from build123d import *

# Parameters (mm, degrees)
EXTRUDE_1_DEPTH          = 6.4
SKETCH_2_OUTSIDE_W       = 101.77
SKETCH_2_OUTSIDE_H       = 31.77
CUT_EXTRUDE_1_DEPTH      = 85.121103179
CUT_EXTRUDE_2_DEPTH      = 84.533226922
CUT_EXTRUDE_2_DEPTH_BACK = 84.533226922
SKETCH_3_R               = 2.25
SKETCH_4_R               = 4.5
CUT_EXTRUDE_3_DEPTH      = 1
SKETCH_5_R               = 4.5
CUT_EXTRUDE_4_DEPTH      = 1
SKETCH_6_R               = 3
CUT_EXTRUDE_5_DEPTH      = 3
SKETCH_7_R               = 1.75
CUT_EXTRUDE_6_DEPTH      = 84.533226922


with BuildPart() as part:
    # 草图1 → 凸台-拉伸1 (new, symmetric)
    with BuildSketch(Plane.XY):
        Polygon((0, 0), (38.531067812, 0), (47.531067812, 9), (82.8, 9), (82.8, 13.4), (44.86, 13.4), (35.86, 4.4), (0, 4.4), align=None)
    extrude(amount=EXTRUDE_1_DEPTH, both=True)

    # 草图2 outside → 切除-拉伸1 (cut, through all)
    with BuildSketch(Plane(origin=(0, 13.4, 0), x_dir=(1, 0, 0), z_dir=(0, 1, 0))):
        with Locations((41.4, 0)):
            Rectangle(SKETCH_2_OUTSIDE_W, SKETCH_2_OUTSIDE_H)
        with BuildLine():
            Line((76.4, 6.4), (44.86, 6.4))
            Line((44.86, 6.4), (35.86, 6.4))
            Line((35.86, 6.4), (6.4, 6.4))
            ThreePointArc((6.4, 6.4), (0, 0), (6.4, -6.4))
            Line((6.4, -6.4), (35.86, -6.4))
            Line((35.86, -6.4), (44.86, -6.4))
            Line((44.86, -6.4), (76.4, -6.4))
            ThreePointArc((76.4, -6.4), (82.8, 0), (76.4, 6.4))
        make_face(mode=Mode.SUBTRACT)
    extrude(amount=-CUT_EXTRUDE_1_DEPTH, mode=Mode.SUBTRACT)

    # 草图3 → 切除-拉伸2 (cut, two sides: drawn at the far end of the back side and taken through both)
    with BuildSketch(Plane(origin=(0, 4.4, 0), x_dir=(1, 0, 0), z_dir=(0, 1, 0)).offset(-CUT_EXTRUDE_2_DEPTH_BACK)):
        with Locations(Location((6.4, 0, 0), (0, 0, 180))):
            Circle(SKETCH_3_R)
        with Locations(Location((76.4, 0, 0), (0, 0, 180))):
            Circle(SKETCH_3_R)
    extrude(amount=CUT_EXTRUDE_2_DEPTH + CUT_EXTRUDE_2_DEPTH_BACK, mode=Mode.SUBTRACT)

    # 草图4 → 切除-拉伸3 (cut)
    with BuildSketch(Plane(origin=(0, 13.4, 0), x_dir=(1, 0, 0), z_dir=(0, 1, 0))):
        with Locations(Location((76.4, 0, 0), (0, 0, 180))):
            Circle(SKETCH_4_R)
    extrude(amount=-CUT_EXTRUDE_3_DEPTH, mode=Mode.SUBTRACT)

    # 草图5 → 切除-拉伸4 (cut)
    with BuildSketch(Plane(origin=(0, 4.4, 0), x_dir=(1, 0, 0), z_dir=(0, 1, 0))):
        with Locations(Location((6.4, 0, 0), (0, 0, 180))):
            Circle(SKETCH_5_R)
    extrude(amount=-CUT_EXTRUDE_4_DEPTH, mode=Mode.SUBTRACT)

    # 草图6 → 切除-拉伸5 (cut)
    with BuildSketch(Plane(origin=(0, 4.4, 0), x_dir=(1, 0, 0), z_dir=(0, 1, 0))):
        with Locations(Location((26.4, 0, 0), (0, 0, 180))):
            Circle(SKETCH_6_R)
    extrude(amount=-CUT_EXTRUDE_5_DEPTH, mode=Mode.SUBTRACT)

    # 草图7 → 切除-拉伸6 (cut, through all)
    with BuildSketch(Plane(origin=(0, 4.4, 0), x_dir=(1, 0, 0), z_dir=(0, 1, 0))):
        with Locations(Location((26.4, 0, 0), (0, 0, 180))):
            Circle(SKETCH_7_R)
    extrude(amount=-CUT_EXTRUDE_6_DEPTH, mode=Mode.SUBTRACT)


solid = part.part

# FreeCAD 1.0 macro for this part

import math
import FreeCAD as App
import Part
import Sketcher
Q = App.Units.Quantity


def add_polygon(sketch, points):
    """Adds a closed chain of lines whose ends are joined by coincident constraints."""
    first, n = sketch.GeometryCount, len(points)
    for a, b in zip(points, points[1:] + points[:1]):
        sketch.addGeometry(Part.LineSegment(App.Vector(*a, 0), App.Vector(*b, 0)), False)
    for i in range(n):
        sketch.addConstraint(Sketcher.Constraint("Coincident", first + i, 2, first + (i + 1) % n, 1))

doc = App.newDocument("Part")
body = doc.addObject("PartDesign::Body", "Body")

# Sketch on XY plane
sketch1 = body.newObject("Sketcher::SketchObject", "Sketch")
sketch1.AttachmentSupport = (doc.getObject("XY_Plane"), [""])
sketch1.MapMode = "FlatFace"
add_polygon(sketch1, [(0, 0), (38.5, 0), (47.5, 9), (82.8, 9), (82.8, 13.4), (44.9, 13.4), (35.9, 4.4), (0, 4.4)])  # lines 0-7
sketch1.addConstraint(Sketcher.Constraint("Horizontal", 0))
sketch1.addConstraint(Sketcher.Constraint("Horizontal", 2))
sketch1.addConstraint(Sketcher.Constraint("Vertical", 3))
sketch1.addConstraint(Sketcher.Constraint("Horizontal", 4))
sketch1.addConstraint(Sketcher.Constraint("Horizontal", 6))
sketch1.addConstraint(Sketcher.Constraint("Vertical", 7))
sketch1.addConstraint(Sketcher.Constraint("Coincident", 7, 2, -1, 1))
sketch1.addConstraint(Sketcher.Constraint("Parallel", 1, 5))
sketch1.addConstraint(Sketcher.Constraint("Equal", 3, 7))
sketch1.addConstraint(Sketcher.Constraint("Angle", 1, Q("45 deg")))
sketch1.addConstraint(Sketcher.Constraint("DistanceY", 3, 1, 3, 2, 4.4))
sketch1.addConstraint(Sketcher.Constraint("DistanceY", -1, 1, 1, 2, 9.0))
sketch1.addConstraint(Sketcher.Constraint("DistanceX", 4, 2, 4, 1, 37.94))
sketch1.addConstraint(Sketcher.Constraint("DistanceX", 6, 2, 6, 1, 35.86))
sketch1.addConstraint(Sketcher.Constraint("DistanceX", 0, 1, 0, 2, 38.531068))
pad1 = body.newObject("PartDesign::Pad", "Pad")
pad1.Profile = sketch1
pad1.Length = 12.8
pad1.Midplane = True

# Sketch on XZ plane
sketch2 = body.newObject("Sketcher::SketchObject", "Sketch001")
sketch2.AttachmentSupport = (doc.getObject("XZ_Plane"), [""])
sketch2.MapMode = "FlatFace"
sketch2.AttachmentOffset = App.Placement(App.Vector(0, 0, -13.4), App.Rotation())
add_polygon(sketch2, [(-9, -16), (-9, 16), (92, 16), (92, -16)])  # lines 0-3
sketch2.addGeometry(Part.LineSegment(App.Vector(6, -6, 0), App.Vector(76, -6, 0)), False)  # 4
sketch2.addGeometry(Part.ArcOfCircle(Part.Circle(App.Vector(76, 0, 0), App.Vector(0, 0, 1), 6), math.radians(-90), math.radians(90)), False)  # 5
sketch2.addGeometry(Part.LineSegment(App.Vector(76, 6, 0), App.Vector(6, 6, 0)), False)  # 6
sketch2.addGeometry(Part.ArcOfCircle(Part.Circle(App.Vector(6, 0, 0), App.Vector(0, 0, 1), 6), math.radians(90), math.radians(270)), False)  # 7
sketch2.addConstraint(Sketcher.Constraint("Tangent", 4, 2, 5, 1))
sketch2.addConstraint(Sketcher.Constraint("Tangent", 5, 2, 6, 1))
sketch2.addConstraint(Sketcher.Constraint("Tangent", 6, 2, 7, 1))
sketch2.addConstraint(Sketcher.Constraint("Tangent", 7, 2, 4, 1))
sketch2.addConstraint(Sketcher.Constraint("Vertical", 0))
sketch2.addConstraint(Sketcher.Constraint("Horizontal", 1))
sketch2.addConstraint(Sketcher.Constraint("Vertical", 2))
sketch2.addConstraint(Sketcher.Constraint("Horizontal", 3))
sketch2.addConstraint(Sketcher.Constraint("Horizontal", 4))
sketch2.addConstraint(Sketcher.Constraint("Horizontal", 6))
sketch2.addConstraint(Sketcher.Constraint("PointOnObject", 5, 3, -1))
sketch2.addConstraint(Sketcher.Constraint("Radius", 5, 6.4))
sketch2.addConstraint(Sketcher.Constraint("DistanceX", 4, 1, 4, 2, 70.0))
sketch2.addConstraint(Sketcher.Constraint("DistanceX", 1, 1, 1, 2, 101.77))
sketch2.addConstraint(Sketcher.Constraint("DistanceY", 0, 1, 0, 2, 31.77))
sketch2.addConstraint(Sketcher.Constraint("DistanceX", -1, 1, 5, 3, 76.4))
sketch2.addConstraint(Sketcher.Constraint("DistanceX", 0, 2, -1, 1, 9.485))
sketch2.addConstraint(Sketcher.Constraint("DistanceY", -1, 1, 0, 2, 15.885))
pocket1 = body.newObject("PartDesign::Pocket", "Pocket")
pocket1.Profile = sketch2
pocket1.Type = "ThroughAll"
pocket1.Reversed = True

# Sketch on XZ plane
sketch3 = body.newObject("Sketcher::SketchObject", "Sketch002")
sketch3.AttachmentSupport = (doc.getObject("XZ_Plane"), [""])
sketch3.MapMode = "FlatFace"
sketch3.AttachmentOffset = App.Placement(App.Vector(0, 0, -4.4), App.Rotation())
sketch3.addGeometry(Part.Circle(App.Vector(6.4, 0, 0), App.Vector(0, 0, 1), 2.2), False)
sketch3.addGeometry(Part.Circle(App.Vector(76.4, 0, 0), App.Vector(0, 0, 1), 2.2), False)
sketch3.addConstraint(Sketcher.Constraint("Equal", 0, 1))
sketch3.addConstraint(Sketcher.Constraint("PointOnObject", 0, 3, -1))
sketch3.addConstraint(Sketcher.Constraint("PointOnObject", 1, 3, -1))
sketch3.addConstraint(Sketcher.Constraint("Diameter", 0, 4.5))
sketch3.addConstraint(Sketcher.Constraint("DistanceX", 0, 3, 1, 3, 70.0))
sketch3.addConstraint(Sketcher.Constraint("DistanceX", -1, 1, 0, 3, 6.4))
pocket2 = body.newObject("PartDesign::Pocket", "Pocket001")
pocket2.Profile = sketch3
pocket2.Type = "ThroughAll"
pocket2.Midplane = True

# Sketch on XZ plane
sketch4 = body.newObject("Sketcher::SketchObject", "Sketch003")
sketch4.AttachmentSupport = (doc.getObject("XZ_Plane"), [""])
sketch4.MapMode = "FlatFace"
sketch4.AttachmentOffset = App.Placement(App.Vector(0, 0, -13.4), App.Rotation())
sketch4.addGeometry(Part.Circle(App.Vector(76.4, 0, 0), App.Vector(0, 0, 1), 4.5), False)
sketch4.addConstraint(Sketcher.Constraint("PointOnObject", 0, 3, -1))
sketch4.addConstraint(Sketcher.Constraint("Diameter", 0, 9.0))
sketch4.addConstraint(Sketcher.Constraint("DistanceX", -1, 1, 0, 3, 76.4))
pocket3 = body.newObject("PartDesign::Pocket", "Pocket002")
pocket3.Profile = sketch4
pocket3.Length = 1
pocket3.Reversed = True

# Sketch on XZ plane
sketch5 = body.newObject("Sketcher::SketchObject", "Sketch004")
sketch5.AttachmentSupport = (doc.getObject("XZ_Plane"), [""])
sketch5.MapMode = "FlatFace"
sketch5.AttachmentOffset = App.Placement(App.Vector(0, 0, -4.4), App.Rotation())
sketch5.addGeometry(Part.Circle(App.Vector(6.4, 0, 0), App.Vector(0, 0, 1), 4.5), False)
sketch5.addConstraint(Sketcher.Constraint("PointOnObject", 0, 3, -1))
sketch5.addConstraint(Sketcher.Constraint("Diameter", 0, 9.0))
sketch5.addConstraint(Sketcher.Constraint("DistanceX", -1, 1, 0, 3, 6.4))
pocket4 = body.newObject("PartDesign::Pocket", "Pocket003")
pocket4.Profile = sketch5
pocket4.Length = 1
pocket4.Reversed = True

# Sketch on XZ plane
sketch6 = body.newObject("Sketcher::SketchObject", "Sketch005")
sketch6.AttachmentSupport = (doc.getObject("XZ_Plane"), [""])
sketch6.MapMode = "FlatFace"
sketch6.AttachmentOffset = App.Placement(App.Vector(0, 0, -4.4), App.Rotation())
sketch6.addGeometry(Part.Circle(App.Vector(26.4, 0, 0), App.Vector(0, 0, 1), 3), False)
sketch6.addConstraint(Sketcher.Constraint("PointOnObject", 0, 3, -1))
sketch6.addConstraint(Sketcher.Constraint("Diameter", 0, 6.0))
sketch6.addConstraint(Sketcher.Constraint("DistanceX", -1, 1, 0, 3, 26.4))
pocket5 = body.newObject("PartDesign::Pocket", "Pocket004")
pocket5.Profile = sketch6
pocket5.Length = 3
pocket5.Reversed = True

# Sketch on XZ plane
sketch7 = body.newObject("Sketcher::SketchObject", "Sketch006")
sketch7.AttachmentSupport = (doc.getObject("XZ_Plane"), [""])
sketch7.MapMode = "FlatFace"
sketch7.AttachmentOffset = App.Placement(App.Vector(0, 0, -4.4), App.Rotation())
sketch7.addGeometry(Part.Circle(App.Vector(26.4, 0, 0), App.Vector(0, 0, 1), 1.8), False)
sketch7.addConstraint(Sketcher.Constraint("PointOnObject", 0, 3, -1))
sketch7.addConstraint(Sketcher.Constraint("Diameter", 0, 3.5))
sketch7.addConstraint(Sketcher.Constraint("DistanceX", -1, 1, 0, 3, 26.4))
pocket6 = body.newObject("PartDesign::Pocket", "Pocket005")
pocket6.Profile = sketch7
pocket6.Type = "ThroughAll"
pocket6.Reversed = True

doc.recompute()
